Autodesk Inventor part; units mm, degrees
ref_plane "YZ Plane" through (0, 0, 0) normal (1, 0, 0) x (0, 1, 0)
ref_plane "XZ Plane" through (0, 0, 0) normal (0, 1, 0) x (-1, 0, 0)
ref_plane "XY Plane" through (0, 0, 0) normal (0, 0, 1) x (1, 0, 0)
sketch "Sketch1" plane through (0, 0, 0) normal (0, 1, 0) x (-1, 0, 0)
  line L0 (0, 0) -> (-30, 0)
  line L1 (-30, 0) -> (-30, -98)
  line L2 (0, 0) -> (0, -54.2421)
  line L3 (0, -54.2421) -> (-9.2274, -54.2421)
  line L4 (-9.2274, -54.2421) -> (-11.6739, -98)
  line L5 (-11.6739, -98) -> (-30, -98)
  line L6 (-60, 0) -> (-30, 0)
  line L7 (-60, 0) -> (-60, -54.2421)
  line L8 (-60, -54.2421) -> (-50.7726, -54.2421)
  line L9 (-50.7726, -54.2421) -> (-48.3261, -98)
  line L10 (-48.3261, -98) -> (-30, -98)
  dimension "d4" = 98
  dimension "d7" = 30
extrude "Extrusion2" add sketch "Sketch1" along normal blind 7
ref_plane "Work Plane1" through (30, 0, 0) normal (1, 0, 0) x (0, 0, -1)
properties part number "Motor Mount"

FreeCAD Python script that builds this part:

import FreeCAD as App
import Part
import Sketcher
Q = App.Units.Quantity


def add_polygon(sketch, points):
    """Adds a closed chain of lines whose ends are joined by coincident constraints."""
    first, n = sketch.GeometryCount, len(points)
    for a, b in zip(points, points[1:] + points[:1]):
        sketch.addGeometry(Part.LineSegment(App.Vector(*a, 0), App.Vector(*b, 0)), False)
    for i in range(n):
        sketch.addConstraint(Sketcher.Constraint("Coincident", first + i, 2, first + (i + 1) % n, 1))

doc = App.newDocument("Part")
body = doc.addObject("PartDesign::Body", "Body")

sketch1 = body.newObject("Sketcher::SketchObject", "Sketch")
sketch1.AttachmentSupport = (doc.getObject("XZ_Plane"), [""])
sketch1.MapMode = "FlatFace"
add_polygon(sketch1, [(0, -54), (0, 0), (60, 0), (60, -54), (51, -54), (48, -98), (12, -98), (9, -54)])
sketch1.addConstraint(Sketcher.Constraint("Vertical", 0))
sketch1.addConstraint(Sketcher.Constraint("Horizontal", 1))
sketch1.addConstraint(Sketcher.Constraint("Vertical", 2))
sketch1.addConstraint(Sketcher.Constraint("Horizontal", 3))
sketch1.addConstraint(Sketcher.Constraint("Horizontal", 5))
sketch1.addConstraint(Sketcher.Constraint("Horizontal", 7))
sketch1.addConstraint(Sketcher.Constraint("Coincident", 0, 2, -1, 1))
sketch1.addConstraint(Sketcher.Constraint("Horizontal", 3, 2, 6, 2))
sketch1.addConstraint(Sketcher.Constraint("Equal", 3, 7))
sketch1.addConstraint(Sketcher.Constraint("Equal", 4, 6))
sketch1.addConstraint(Sketcher.Constraint("Angle", 4, Q("-93.2 deg")))
sketch1.addConstraint(Sketcher.Constraint("DistanceX", 5, 2, 5, 1, Q("1.443 in")))
sketch1.addConstraint(Sketcher.Constraint("DistanceY", 4, 2, -1, 1, Q("98 mm")))
sketch1.addConstraint(Sketcher.Constraint("DistanceX", 1, 1, 1, 2, Q("2.3622 in")))
sketch1.addConstraint(Sketcher.Constraint("DistanceX", 3, 2, 3, 1, Q("9.2274 mm")))
pad1 = body.newObject("PartDesign::Pad", "Pad")
pad1.Profile = sketch1
pad1.Length = Q("0.2755906 in")
pad1.Reversed = True

doc.recompute()
